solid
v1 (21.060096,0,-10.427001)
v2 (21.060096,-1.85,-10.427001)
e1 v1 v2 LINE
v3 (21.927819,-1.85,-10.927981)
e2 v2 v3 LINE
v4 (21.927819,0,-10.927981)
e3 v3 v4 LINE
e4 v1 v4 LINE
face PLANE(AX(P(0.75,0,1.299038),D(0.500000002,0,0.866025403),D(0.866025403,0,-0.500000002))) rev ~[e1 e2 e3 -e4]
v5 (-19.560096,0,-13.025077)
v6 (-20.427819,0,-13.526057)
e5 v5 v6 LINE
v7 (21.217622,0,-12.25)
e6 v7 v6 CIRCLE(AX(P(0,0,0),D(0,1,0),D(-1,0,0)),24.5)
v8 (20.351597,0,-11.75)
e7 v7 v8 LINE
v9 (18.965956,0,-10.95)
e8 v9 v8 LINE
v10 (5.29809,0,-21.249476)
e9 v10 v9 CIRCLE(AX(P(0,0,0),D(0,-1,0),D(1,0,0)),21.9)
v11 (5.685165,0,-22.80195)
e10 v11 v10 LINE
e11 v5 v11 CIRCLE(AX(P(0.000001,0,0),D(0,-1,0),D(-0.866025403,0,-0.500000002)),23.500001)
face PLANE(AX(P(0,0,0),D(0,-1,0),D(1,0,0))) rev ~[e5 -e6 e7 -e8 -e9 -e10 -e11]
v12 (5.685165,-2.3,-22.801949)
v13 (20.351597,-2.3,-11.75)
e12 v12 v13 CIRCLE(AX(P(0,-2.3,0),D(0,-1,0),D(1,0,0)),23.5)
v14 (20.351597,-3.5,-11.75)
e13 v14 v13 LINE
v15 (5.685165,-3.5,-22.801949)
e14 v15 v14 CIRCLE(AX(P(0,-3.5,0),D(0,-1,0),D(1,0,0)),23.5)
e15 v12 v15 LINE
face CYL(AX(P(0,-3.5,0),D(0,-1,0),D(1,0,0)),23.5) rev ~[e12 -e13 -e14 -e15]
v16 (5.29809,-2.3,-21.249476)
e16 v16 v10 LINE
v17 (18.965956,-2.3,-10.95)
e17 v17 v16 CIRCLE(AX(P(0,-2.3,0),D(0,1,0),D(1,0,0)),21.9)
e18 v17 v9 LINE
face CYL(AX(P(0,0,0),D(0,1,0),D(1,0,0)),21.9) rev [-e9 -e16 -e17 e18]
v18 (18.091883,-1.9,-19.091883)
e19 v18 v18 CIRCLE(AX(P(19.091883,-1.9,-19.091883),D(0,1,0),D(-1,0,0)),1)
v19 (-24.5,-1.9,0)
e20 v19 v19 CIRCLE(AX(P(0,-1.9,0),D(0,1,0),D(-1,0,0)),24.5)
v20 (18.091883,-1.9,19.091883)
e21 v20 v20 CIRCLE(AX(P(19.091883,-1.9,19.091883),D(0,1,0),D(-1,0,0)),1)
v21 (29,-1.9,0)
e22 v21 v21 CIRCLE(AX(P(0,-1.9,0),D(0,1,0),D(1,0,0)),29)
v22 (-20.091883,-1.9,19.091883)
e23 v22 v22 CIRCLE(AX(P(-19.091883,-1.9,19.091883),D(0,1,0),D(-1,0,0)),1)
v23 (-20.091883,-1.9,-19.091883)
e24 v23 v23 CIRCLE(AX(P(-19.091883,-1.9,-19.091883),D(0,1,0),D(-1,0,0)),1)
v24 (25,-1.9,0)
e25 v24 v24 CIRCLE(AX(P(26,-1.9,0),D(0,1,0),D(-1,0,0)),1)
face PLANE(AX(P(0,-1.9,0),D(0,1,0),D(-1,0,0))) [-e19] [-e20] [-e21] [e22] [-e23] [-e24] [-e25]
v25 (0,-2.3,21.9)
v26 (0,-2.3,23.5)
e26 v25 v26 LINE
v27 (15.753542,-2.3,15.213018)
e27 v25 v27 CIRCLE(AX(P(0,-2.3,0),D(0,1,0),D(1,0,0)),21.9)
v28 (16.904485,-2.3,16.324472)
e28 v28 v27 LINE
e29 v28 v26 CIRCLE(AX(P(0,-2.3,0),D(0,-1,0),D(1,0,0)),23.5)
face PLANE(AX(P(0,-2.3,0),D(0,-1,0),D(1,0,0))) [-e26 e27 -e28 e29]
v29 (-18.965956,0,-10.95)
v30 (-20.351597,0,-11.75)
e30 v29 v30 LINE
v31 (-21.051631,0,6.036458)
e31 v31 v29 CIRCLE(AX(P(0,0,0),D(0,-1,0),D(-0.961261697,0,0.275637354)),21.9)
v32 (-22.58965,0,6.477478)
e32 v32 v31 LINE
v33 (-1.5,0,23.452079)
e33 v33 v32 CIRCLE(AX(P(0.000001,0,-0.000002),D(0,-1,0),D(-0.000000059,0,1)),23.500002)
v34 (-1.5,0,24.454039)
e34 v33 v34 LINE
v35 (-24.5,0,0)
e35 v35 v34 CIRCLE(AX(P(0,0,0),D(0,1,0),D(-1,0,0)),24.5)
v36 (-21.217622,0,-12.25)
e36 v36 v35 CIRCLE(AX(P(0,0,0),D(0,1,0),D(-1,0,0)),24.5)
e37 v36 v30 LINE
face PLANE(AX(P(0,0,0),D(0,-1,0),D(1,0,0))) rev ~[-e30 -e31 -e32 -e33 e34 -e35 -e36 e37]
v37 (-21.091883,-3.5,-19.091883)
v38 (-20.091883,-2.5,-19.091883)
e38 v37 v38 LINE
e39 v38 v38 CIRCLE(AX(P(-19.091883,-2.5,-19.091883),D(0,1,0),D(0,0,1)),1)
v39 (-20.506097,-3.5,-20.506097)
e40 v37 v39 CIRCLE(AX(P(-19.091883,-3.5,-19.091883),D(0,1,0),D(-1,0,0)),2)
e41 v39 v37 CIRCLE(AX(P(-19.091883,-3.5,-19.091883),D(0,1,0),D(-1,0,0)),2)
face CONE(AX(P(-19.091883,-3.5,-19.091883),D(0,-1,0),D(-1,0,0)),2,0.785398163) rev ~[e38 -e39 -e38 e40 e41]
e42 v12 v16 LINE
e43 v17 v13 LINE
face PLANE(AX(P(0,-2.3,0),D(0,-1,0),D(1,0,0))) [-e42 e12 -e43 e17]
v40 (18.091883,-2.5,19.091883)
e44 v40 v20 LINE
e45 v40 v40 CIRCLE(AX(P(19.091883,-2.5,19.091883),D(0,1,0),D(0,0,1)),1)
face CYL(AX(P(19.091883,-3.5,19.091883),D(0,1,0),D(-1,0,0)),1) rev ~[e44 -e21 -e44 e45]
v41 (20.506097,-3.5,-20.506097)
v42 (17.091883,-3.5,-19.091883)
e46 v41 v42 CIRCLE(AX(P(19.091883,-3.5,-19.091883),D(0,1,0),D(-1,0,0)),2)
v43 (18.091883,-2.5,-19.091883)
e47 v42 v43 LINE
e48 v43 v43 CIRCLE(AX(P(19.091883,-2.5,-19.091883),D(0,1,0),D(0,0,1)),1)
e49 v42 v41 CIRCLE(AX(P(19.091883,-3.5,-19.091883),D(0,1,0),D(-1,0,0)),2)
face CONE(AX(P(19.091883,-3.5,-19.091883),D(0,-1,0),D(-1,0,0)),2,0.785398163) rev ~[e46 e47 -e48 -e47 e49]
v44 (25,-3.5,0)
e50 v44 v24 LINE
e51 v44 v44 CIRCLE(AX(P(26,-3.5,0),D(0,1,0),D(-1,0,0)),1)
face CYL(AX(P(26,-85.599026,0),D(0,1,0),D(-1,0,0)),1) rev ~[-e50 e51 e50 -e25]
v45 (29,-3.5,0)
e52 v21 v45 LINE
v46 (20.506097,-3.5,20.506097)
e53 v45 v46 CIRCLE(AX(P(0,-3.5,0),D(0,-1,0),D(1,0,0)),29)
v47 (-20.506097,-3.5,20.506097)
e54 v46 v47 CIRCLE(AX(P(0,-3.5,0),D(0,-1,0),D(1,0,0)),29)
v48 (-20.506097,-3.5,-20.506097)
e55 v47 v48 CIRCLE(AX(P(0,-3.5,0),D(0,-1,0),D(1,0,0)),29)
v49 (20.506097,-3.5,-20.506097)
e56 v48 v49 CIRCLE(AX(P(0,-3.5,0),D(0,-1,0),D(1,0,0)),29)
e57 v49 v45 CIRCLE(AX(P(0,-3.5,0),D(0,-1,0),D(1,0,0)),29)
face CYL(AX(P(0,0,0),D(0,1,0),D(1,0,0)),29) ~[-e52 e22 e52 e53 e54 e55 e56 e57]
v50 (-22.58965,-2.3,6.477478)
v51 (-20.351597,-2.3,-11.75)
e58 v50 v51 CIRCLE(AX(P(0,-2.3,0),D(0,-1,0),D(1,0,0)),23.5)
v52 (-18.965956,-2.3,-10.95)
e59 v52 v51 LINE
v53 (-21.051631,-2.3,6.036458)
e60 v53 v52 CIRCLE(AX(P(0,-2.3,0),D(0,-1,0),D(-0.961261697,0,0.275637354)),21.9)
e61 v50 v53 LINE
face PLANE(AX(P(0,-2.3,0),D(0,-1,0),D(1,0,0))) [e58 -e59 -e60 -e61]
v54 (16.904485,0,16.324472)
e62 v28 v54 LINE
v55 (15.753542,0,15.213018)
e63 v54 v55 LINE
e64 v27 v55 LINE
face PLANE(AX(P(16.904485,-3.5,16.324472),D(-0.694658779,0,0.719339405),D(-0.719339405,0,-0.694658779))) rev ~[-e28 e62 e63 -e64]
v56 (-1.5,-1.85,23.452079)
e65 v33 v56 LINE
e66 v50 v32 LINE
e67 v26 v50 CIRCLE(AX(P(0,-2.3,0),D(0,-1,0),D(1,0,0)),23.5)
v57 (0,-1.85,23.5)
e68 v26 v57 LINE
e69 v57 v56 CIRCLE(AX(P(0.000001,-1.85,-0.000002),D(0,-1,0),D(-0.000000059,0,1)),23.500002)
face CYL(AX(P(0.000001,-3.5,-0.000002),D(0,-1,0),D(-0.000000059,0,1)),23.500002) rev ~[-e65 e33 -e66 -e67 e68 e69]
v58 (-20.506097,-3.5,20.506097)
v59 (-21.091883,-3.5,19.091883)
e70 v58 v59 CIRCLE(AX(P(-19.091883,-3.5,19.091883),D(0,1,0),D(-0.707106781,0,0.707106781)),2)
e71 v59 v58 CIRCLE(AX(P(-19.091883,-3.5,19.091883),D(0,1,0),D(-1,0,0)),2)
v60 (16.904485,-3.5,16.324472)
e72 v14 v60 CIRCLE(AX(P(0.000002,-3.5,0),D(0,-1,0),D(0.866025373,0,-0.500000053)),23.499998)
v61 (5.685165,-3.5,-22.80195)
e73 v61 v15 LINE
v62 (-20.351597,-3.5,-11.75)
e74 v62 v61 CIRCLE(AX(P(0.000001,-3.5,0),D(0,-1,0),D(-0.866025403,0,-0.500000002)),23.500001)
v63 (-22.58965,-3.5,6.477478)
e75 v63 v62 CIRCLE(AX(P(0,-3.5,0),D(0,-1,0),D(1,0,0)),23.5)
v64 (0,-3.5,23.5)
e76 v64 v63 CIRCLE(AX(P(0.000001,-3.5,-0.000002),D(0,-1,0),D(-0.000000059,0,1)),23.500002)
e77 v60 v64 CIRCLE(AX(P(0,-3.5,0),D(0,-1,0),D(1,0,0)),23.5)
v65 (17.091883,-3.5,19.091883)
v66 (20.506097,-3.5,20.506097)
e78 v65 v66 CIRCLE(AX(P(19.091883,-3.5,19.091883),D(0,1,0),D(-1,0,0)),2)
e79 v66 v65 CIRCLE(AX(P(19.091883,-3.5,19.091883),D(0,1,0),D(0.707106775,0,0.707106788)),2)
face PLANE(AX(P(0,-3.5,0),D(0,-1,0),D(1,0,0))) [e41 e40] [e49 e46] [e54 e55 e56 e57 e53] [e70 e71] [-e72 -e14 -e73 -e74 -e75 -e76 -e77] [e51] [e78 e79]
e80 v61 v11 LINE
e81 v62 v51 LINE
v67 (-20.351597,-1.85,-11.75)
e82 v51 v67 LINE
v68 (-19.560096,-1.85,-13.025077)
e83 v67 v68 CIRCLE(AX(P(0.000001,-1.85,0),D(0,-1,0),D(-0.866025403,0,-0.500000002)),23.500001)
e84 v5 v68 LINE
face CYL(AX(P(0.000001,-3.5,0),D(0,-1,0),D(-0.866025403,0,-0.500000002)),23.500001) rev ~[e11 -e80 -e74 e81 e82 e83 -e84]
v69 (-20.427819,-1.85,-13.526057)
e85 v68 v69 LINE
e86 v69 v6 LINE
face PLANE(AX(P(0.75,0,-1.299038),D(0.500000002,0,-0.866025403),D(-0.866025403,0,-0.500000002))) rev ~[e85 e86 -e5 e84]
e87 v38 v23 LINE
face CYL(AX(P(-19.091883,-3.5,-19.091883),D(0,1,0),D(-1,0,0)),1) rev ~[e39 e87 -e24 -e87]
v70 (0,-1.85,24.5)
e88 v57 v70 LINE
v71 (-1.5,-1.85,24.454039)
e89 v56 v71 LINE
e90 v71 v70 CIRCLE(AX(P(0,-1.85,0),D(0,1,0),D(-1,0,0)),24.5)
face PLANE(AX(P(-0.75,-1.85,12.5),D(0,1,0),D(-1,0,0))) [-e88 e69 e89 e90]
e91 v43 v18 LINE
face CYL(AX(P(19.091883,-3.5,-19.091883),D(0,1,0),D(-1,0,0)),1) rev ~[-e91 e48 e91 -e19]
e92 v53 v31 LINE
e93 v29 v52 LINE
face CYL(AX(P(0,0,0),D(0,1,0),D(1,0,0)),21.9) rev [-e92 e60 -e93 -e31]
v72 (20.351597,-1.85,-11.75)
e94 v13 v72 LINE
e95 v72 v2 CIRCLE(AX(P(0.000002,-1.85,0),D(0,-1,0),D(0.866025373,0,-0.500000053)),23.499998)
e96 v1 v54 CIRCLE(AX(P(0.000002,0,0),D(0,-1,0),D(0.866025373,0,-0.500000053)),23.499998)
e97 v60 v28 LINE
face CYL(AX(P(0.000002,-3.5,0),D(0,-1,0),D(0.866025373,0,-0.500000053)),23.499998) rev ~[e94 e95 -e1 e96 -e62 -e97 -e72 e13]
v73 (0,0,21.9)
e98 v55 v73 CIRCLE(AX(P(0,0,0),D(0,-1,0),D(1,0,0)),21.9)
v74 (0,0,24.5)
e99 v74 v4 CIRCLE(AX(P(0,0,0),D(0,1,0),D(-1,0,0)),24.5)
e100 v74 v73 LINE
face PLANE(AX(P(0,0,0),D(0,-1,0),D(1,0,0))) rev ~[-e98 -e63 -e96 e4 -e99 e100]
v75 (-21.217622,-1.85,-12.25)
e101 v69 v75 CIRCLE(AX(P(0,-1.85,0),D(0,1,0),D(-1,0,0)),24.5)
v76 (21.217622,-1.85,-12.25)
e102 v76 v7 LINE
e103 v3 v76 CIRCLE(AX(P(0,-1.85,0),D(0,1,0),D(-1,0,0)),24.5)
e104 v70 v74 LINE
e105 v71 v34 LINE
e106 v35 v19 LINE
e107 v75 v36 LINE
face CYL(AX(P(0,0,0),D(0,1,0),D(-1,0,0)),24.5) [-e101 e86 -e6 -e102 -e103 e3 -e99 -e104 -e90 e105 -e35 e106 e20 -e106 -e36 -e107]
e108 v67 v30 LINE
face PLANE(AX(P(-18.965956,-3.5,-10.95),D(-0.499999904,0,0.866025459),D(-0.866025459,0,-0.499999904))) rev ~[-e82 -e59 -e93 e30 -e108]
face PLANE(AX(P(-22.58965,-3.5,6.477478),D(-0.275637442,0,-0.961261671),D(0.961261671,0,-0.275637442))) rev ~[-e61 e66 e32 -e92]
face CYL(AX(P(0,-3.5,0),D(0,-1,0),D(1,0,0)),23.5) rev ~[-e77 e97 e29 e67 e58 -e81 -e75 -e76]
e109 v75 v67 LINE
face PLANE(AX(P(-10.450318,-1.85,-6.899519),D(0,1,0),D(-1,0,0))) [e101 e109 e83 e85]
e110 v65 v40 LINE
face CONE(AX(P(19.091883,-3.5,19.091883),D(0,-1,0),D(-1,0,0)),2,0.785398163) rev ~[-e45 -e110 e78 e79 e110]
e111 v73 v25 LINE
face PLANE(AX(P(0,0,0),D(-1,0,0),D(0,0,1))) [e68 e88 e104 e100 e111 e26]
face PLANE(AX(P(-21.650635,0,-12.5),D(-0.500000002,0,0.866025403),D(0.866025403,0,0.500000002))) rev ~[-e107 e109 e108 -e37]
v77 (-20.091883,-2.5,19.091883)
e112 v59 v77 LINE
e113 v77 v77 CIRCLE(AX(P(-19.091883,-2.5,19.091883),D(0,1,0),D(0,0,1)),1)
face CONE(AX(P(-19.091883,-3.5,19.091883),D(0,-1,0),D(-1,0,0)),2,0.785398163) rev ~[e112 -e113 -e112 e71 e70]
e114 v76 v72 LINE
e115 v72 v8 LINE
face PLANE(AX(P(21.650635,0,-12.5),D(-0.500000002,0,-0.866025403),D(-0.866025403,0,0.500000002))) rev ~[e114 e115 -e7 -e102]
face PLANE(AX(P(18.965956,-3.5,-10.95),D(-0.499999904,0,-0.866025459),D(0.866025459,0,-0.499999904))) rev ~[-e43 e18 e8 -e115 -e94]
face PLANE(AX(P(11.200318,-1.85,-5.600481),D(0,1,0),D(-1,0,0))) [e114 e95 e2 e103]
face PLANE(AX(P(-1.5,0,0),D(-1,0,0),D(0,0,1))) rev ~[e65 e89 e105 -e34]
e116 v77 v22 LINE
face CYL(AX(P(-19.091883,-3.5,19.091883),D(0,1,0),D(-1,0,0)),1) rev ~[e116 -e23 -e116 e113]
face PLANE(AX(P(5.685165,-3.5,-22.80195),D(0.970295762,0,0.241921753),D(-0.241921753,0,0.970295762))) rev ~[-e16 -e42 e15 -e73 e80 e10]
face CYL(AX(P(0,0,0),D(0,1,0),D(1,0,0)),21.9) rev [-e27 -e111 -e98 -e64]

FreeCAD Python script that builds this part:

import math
import FreeCAD as App
import Part
import Sketcher
from FreeCAD import Vector
Q = App.Units.Quantity

doc = App.newDocument("Part")
body = doc.addObject("PartDesign::Body", "Body")

sketch1 = body.newObject("Sketcher::SketchObject", "Sketch")
sketch1.AttachmentSupport = (doc.getObject("XZ_Plane"), [""])
sketch1.MapMode = "FlatFace"
sketch1.addGeometry([
    Part.Circle(Vector(0, 0, 0), Vector(0, 0, 1), 29),
    Part.Circle(Vector(0, 0, 0), Vector(0, 0, 1), 21.9),
], False)
sketch1.addConstraint([
    Sketcher.Constraint("Coincident", 0, 3, -1, 1),
    Sketcher.Constraint("Coincident", 1, 3, -1, 1),
    Sketcher.Constraint("Diameter", 0, 58.0),
    Sketcher.Constraint("Diameter", 1, 43.8),
])
pad1 = body.newObject("PartDesign::Pad", "Pad")
pad1.Profile = sketch1
pad1.Length = 3.5

sketch2 = body.newObject("Sketcher::SketchObject", "Sketch001")
sketch2.AttachmentSupport = (doc.getObject("XZ_Plane"), [""])
sketch2.MapMode = "FlatFace"
sketch2.AttachmentOffset = App.Placement(Vector(0, 0, 3.5), App.Rotation())
sketch2.addGeometry(Part.Circle(Vector(0, 0, 0), Vector(0, 0, 1), 23.5), False)
sketch2.addConstraint([
    Sketcher.Constraint("Coincident", 0, 3, -1, 1),
    Sketcher.Constraint("Diameter", 0, 47.0),
])
pocket1 = body.newObject("PartDesign::Pocket", "Pocket")
pocket1.Profile = sketch2
pocket1.Length = 1.2

sketch3 = body.newObject("Sketcher::SketchObject", "Sketch002")
sketch3.AttachmentSupport = (doc.getObject("XZ_Plane"), [""])
sketch3.MapMode = "FlatFace"
sketch3.AttachmentOffset = App.Placement(Vector(0, 0, 3.5), App.Rotation())
sketch3.addGeometry([
    Part.LineSegment(Vector(0, 21.9, 0), Vector(0, 23.5, 0)),
    Part.ArcOfCircle(Part.Circle(Vector(0.000001, -0.000002, 0), Vector(0, 0, 1), 23.500002), math.radians(90.000003), math.radians(163.999996)),
    Part.LineSegment(Vector(-22.58965, 6.477478, 0), Vector(-21.051631, 6.036458, 0)),
    Part.ArcOfCircle(Part.Circle(Vector(-0.000007, -0.000001, 0), Vector(0, 0, 1), 21.899993), math.radians(163.999993), math.radians(210.000008)),
    Part.LineSegment(Vector(-18.965956, -10.95, 0), Vector(-20.351597, -11.75, 0)),
    Part.ArcOfCircle(Part.Circle(Vector(0.000001, 0, 0), Vector(0, 0, 1), 23.500001), math.radians(-150), math.radians(-76.000001)),
    Part.LineSegment(Vector(5.685165, -22.80195, 0), Vector(5.29809, -21.249476, 0)),
    Part.ArcOfCircle(Part.Circle(Vector(0.000004, -0.000005, 0), Vector(0, 0, 1), 21.899993), math.radians(-76.000005), math.radians(-29.999993)),
    Part.LineSegment(Vector(18.965956, -10.95, 0), Vector(20.351597, -11.75, 0)),
    Part.ArcOfCircle(Part.Circle(Vector(0.000002, 0, 0), Vector(0, 0, 1), 23.499998), math.radians(-30.000004), math.radians(44.000005)),
    Part.LineSegment(Vector(16.904485, 16.324472, 0), Vector(15.753542, 15.213018, 0)),
    Part.ArcOfCircle(Part.Circle(Vector(-0.000001, -0.000002, 0), Vector(0, 0, 1), 21.900002), math.radians(44.000001), math.radians(89.999998)),
], False)
sketch3.addConstraint([
    Sketcher.Constraint("Coincident", 0, 2, 1, 1),
    Sketcher.Constraint("Coincident", 1, 2, 2, 1),
    Sketcher.Constraint("Coincident", 2, 2, 3, 1),
    Sketcher.Constraint("Coincident", 3, 2, 4, 1),
    Sketcher.Constraint("Coincident", 4, 2, 5, 1),
    Sketcher.Constraint("Coincident", 5, 2, 6, 1),
    Sketcher.Constraint("Coincident", 6, 2, 7, 1),
    Sketcher.Constraint("Coincident", 7, 2, 8, 1),
    Sketcher.Constraint("Coincident", 8, 2, 9, 1),
    Sketcher.Constraint("Coincident", 9, 2, 10, 1),
    Sketcher.Constraint("Coincident", 10, 2, 11, 1),
    Sketcher.Constraint("Coincident", 11, 2, 0, 1),
    Sketcher.Constraint("Vertical", 0),
    Sketcher.Constraint("Coincident", 1, 3, -1, 1),
    Sketcher.Constraint("Coincident", 3, 3, -1, 1),
    Sketcher.Constraint("Coincident", 5, 3, -1, 1),
    Sketcher.Constraint("Coincident", 7, 3, -1, 1),
    Sketcher.Constraint("Coincident", 9, 3, -1, 1),
    Sketcher.Constraint("Coincident", 11, 3, -1, 1),
    Sketcher.Constraint("Equal", 1, 5),
    Sketcher.Constraint("Equal", 3, 7),
    Sketcher.Constraint("Symmetric", 4, 2, 8, 2, -2),
    Sketcher.Constraint("PointOnObject", 0, 2, -2),
    Sketcher.Constraint("Horizontal", 3, 2, 7, 2),
    Sketcher.Constraint("Equal", 8, 10),
    Sketcher.Constraint("Radius", 5, 23.500001),
    Sketcher.Constraint("Angle", 2, Q("-16.000005 deg")),
    Sketcher.Constraint("Angle", 4, Q("-150.000006 deg")),
    Sketcher.Constraint("Angle", 6, Q("103.999992 deg")),
    Sketcher.Constraint("DistanceY", 0, 1, 0, 2, 1.6),
    Sketcher.Constraint("DistanceY", 3, 2, -1, 1, 10.95),
    Sketcher.Constraint("DistanceX", 1, 2, -1, 1, 22.58965),
    Sketcher.Constraint("DistanceY", 5, 2, -1, 1, 22.80195),
    Sketcher.Constraint("DistanceY", -1, 1, 9, 2, 16.324472),
    Sketcher.Constraint("DistanceX", 9, 3, 10, 2, 15.75354),
])
pocket2 = body.newObject("PartDesign::Pocket", "Pocket001")
pocket2.Profile = sketch3
pocket2.Type = "ThroughAll"

sketch4 = body.newObject("Sketcher::SketchObject", "Sketch003")
sketch4.AttachmentSupport = (doc.getObject("XZ_Plane"), [""])
sketch4.MapMode = "FlatFace"
sketch4.addGeometry([
    Part.Circle(Vector(0, 0, 0), Vector(0, 0, 1), 30.5),
    Part.Circle(Vector(0, 0, 0), Vector(0, 0, 1), 24.5),
], False)
sketch4.addConstraint([
    Sketcher.Constraint("Coincident", 0, 3, -1, 1),
    Sketcher.Constraint("Coincident", 1, 3, -1, 1),
    Sketcher.Constraint("Diameter", 0, 61.0),
    Sketcher.Constraint("Diameter", 1, 49.0),
])
pocket3 = body.newObject("PartDesign::Pocket", "Pocket002")
pocket3.Profile = sketch4
pocket3.Length = 1.9
pocket3.Reversed = True

sketch5 = body.newObject("Sketcher::SketchObject", "Sketch004")
sketch5.AttachmentSupport = (doc.getObject("XZ_Plane"), [""])
sketch5.MapMode = "FlatFace"
sketch5.addGeometry([
    Part.LineSegment(Vector(-21.650635, -12.5, 0), Vector(0, 0, 0)),
    Part.LineSegment(Vector(0, 0, 0), Vector(0.75, -1.299038, 0)),
    Part.LineSegment(Vector(0.75, -1.299038, 0), Vector(-20.900635, -13.799038, 0)),
    Part.LineSegment(Vector(-20.900635, -13.799038, 0), Vector(-21.650635, -12.5, 0)),
    Part.LineSegment(Vector(0, 25, 0), Vector(0, 0, 0)),
    Part.LineSegment(Vector(0, 0, 0), Vector(-1.5, 0, 0)),
    Part.LineSegment(Vector(-1.5, 0, 0), Vector(-1.5, 25, 0)),
    Part.LineSegment(Vector(-1.5, 25, 0), Vector(0, 25, 0)),
    Part.LineSegment(Vector(21.650635, -12.5, 0), Vector(0, 0, 0)),
    Part.LineSegment(Vector(0, 0, 0), Vector(0.75, 1.299038, 0)),
    Part.LineSegment(Vector(0.75, 1.299038, 0), Vector(22.400635, -11.200962, 0)),
    Part.LineSegment(Vector(22.400635, -11.200962, 0), Vector(21.650635, -12.5, 0)),
], False)
sketch5.addConstraint([
    Sketcher.Constraint("Coincident", 0, 2, 1, 1),
    Sketcher.Constraint("Coincident", 1, 2, 2, 1),
    Sketcher.Constraint("Coincident", 2, 2, 3, 1),
    Sketcher.Constraint("Coincident", 3, 2, 0, 1),
    Sketcher.Constraint("Coincident", 4, 2, 5, 1),
    Sketcher.Constraint("Coincident", 5, 2, 6, 1),
    Sketcher.Constraint("Coincident", 6, 2, 7, 1),
    Sketcher.Constraint("Coincident", 7, 2, 4, 1),
    Sketcher.Constraint("Coincident", 8, 2, 9, 1),
    Sketcher.Constraint("Coincident", 9, 2, 10, 1),
    Sketcher.Constraint("Coincident", 10, 2, 11, 1),
    Sketcher.Constraint("Coincident", 11, 2, 8, 1),
    Sketcher.Constraint("Vertical", 4),
    Sketcher.Constraint("Horizontal", 5),
    Sketcher.Constraint("Vertical", 6),
    Sketcher.Constraint("Horizontal", 7),
    Sketcher.Constraint("Coincident", 0, 2, -1, 1),
    Sketcher.Constraint("Coincident", 4, 2, -1, 1),
    Sketcher.Constraint("Coincident", 8, 2, -1, 1),
    Sketcher.Constraint("Symmetric", 3, 2, 11, 2, -2),
    Sketcher.Constraint("Symmetric", 1, 2, 9, 2, -1),
    Sketcher.Constraint("Perpendicular", 0, 1),
    Sketcher.Constraint("Perpendicular", 1, 2),
    Sketcher.Constraint("Perpendicular", 2, 3),
    Sketcher.Constraint("Perpendicular", 9, 10),
    Sketcher.Constraint("Perpendicular", 10, 11),
    Sketcher.Constraint("DistanceY", 4, 2, 4, 1, 25.0),
    Sketcher.Constraint("Angle", 0, Q("30 deg")),
    Sketcher.Constraint("Distance", 0, 25.0),
    Sketcher.Constraint("DistanceX", 5, 2, 5, 1, 1.5),
    Sketcher.Constraint("Distance", 1, 1.5),
])
pocket4 = body.newObject("PartDesign::Pocket", "Pocket003")
pocket4.Profile = sketch5
pocket4.Length = 1.85
pocket4.Reversed = True

sketch6 = body.newObject("Sketcher::SketchObject", "Sketch005")
sketch6.AttachmentSupport = (doc.getObject("XZ_Plane"), [""])
sketch6.MapMode = "FlatFace"
sketch6.AttachmentOffset = App.Placement(Vector(0, 0, 3.5), App.Rotation())
sketch6.addGeometry(Part.Circle(Vector(26, 0, 0), Vector(0, 0, 1), 1), False)
sketch6.addConstraint([
    Sketcher.Constraint("PointOnObject", 0, 3, -1),
    Sketcher.Constraint("Diameter", 0, 2.0),
    Sketcher.Constraint("DistanceX", -1, 1, 0, 3, 26.0),
])
doc.recompute()
hole = body.newObject("PartDesign::Hole", "Hole")
hole.Profile = sketch6
hole.ThreadType = "None"
hole.Diameter = 2
hole.DepthType = "ThroughAll"

sketch7 = body.newObject("Sketcher::SketchObject", "Sketch006")
sketch7.AttachmentSupport = (doc.getObject("XZ_Plane"), [""])
sketch7.MapMode = "FlatFace"
sketch7.AttachmentOffset = App.Placement(Vector(0, 0, 3.5), App.Rotation())
sketch7.addGeometry([
    Part.Circle(Vector(-19.091883, 19.091883, 0), Vector(0, 0, 1), 1),
    Part.Circle(Vector(19.091883, 19.091883, 0), Vector(0, 0, 1), 1),
    Part.Circle(Vector(19.091883, -19.091883, 0), Vector(0, 0, 1), 1),
    Part.Circle(Vector(-19.091883, -19.091883, 0), Vector(0, 0, 1), 1),
], False)
sketch7.addConstraint([
    Sketcher.Constraint("Equal", 0, 1),
    Sketcher.Constraint("Equal", 1, 2),
    Sketcher.Constraint("Equal", 2, 3),
    Sketcher.Constraint("Symmetric", 0, 3, 2, 3, -1, 1),
    Sketcher.Constraint("Symmetric", 1, 3, 3, 3, -1, 1),
    Sketcher.Constraint("Symmetric", 0, 3, 1, 3, -2),
    Sketcher.Constraint("Diameter", 0, 2.0),
    Sketcher.Constraint("DistanceX", 0, 3, -1, 1, 19.091883),
    Sketcher.Constraint("DistanceY", -1, 1, 0, 3, 19.091883),
])
doc.recompute()
hole2 = body.newObject("PartDesign::Hole", "Hole001")
hole2.Profile = sketch7
hole2.ThreadType = "None"
hole2.Diameter = 2
hole2.DepthType = "Dimension"
hole2.Depth = 10
hole2.DrillPoint = "Flat"
hole2.HoleCutType = "Countersink"
hole2.HoleCutDiameter = 4
hole2.HoleCutCountersinkAngle = 90

doc.recompute()
